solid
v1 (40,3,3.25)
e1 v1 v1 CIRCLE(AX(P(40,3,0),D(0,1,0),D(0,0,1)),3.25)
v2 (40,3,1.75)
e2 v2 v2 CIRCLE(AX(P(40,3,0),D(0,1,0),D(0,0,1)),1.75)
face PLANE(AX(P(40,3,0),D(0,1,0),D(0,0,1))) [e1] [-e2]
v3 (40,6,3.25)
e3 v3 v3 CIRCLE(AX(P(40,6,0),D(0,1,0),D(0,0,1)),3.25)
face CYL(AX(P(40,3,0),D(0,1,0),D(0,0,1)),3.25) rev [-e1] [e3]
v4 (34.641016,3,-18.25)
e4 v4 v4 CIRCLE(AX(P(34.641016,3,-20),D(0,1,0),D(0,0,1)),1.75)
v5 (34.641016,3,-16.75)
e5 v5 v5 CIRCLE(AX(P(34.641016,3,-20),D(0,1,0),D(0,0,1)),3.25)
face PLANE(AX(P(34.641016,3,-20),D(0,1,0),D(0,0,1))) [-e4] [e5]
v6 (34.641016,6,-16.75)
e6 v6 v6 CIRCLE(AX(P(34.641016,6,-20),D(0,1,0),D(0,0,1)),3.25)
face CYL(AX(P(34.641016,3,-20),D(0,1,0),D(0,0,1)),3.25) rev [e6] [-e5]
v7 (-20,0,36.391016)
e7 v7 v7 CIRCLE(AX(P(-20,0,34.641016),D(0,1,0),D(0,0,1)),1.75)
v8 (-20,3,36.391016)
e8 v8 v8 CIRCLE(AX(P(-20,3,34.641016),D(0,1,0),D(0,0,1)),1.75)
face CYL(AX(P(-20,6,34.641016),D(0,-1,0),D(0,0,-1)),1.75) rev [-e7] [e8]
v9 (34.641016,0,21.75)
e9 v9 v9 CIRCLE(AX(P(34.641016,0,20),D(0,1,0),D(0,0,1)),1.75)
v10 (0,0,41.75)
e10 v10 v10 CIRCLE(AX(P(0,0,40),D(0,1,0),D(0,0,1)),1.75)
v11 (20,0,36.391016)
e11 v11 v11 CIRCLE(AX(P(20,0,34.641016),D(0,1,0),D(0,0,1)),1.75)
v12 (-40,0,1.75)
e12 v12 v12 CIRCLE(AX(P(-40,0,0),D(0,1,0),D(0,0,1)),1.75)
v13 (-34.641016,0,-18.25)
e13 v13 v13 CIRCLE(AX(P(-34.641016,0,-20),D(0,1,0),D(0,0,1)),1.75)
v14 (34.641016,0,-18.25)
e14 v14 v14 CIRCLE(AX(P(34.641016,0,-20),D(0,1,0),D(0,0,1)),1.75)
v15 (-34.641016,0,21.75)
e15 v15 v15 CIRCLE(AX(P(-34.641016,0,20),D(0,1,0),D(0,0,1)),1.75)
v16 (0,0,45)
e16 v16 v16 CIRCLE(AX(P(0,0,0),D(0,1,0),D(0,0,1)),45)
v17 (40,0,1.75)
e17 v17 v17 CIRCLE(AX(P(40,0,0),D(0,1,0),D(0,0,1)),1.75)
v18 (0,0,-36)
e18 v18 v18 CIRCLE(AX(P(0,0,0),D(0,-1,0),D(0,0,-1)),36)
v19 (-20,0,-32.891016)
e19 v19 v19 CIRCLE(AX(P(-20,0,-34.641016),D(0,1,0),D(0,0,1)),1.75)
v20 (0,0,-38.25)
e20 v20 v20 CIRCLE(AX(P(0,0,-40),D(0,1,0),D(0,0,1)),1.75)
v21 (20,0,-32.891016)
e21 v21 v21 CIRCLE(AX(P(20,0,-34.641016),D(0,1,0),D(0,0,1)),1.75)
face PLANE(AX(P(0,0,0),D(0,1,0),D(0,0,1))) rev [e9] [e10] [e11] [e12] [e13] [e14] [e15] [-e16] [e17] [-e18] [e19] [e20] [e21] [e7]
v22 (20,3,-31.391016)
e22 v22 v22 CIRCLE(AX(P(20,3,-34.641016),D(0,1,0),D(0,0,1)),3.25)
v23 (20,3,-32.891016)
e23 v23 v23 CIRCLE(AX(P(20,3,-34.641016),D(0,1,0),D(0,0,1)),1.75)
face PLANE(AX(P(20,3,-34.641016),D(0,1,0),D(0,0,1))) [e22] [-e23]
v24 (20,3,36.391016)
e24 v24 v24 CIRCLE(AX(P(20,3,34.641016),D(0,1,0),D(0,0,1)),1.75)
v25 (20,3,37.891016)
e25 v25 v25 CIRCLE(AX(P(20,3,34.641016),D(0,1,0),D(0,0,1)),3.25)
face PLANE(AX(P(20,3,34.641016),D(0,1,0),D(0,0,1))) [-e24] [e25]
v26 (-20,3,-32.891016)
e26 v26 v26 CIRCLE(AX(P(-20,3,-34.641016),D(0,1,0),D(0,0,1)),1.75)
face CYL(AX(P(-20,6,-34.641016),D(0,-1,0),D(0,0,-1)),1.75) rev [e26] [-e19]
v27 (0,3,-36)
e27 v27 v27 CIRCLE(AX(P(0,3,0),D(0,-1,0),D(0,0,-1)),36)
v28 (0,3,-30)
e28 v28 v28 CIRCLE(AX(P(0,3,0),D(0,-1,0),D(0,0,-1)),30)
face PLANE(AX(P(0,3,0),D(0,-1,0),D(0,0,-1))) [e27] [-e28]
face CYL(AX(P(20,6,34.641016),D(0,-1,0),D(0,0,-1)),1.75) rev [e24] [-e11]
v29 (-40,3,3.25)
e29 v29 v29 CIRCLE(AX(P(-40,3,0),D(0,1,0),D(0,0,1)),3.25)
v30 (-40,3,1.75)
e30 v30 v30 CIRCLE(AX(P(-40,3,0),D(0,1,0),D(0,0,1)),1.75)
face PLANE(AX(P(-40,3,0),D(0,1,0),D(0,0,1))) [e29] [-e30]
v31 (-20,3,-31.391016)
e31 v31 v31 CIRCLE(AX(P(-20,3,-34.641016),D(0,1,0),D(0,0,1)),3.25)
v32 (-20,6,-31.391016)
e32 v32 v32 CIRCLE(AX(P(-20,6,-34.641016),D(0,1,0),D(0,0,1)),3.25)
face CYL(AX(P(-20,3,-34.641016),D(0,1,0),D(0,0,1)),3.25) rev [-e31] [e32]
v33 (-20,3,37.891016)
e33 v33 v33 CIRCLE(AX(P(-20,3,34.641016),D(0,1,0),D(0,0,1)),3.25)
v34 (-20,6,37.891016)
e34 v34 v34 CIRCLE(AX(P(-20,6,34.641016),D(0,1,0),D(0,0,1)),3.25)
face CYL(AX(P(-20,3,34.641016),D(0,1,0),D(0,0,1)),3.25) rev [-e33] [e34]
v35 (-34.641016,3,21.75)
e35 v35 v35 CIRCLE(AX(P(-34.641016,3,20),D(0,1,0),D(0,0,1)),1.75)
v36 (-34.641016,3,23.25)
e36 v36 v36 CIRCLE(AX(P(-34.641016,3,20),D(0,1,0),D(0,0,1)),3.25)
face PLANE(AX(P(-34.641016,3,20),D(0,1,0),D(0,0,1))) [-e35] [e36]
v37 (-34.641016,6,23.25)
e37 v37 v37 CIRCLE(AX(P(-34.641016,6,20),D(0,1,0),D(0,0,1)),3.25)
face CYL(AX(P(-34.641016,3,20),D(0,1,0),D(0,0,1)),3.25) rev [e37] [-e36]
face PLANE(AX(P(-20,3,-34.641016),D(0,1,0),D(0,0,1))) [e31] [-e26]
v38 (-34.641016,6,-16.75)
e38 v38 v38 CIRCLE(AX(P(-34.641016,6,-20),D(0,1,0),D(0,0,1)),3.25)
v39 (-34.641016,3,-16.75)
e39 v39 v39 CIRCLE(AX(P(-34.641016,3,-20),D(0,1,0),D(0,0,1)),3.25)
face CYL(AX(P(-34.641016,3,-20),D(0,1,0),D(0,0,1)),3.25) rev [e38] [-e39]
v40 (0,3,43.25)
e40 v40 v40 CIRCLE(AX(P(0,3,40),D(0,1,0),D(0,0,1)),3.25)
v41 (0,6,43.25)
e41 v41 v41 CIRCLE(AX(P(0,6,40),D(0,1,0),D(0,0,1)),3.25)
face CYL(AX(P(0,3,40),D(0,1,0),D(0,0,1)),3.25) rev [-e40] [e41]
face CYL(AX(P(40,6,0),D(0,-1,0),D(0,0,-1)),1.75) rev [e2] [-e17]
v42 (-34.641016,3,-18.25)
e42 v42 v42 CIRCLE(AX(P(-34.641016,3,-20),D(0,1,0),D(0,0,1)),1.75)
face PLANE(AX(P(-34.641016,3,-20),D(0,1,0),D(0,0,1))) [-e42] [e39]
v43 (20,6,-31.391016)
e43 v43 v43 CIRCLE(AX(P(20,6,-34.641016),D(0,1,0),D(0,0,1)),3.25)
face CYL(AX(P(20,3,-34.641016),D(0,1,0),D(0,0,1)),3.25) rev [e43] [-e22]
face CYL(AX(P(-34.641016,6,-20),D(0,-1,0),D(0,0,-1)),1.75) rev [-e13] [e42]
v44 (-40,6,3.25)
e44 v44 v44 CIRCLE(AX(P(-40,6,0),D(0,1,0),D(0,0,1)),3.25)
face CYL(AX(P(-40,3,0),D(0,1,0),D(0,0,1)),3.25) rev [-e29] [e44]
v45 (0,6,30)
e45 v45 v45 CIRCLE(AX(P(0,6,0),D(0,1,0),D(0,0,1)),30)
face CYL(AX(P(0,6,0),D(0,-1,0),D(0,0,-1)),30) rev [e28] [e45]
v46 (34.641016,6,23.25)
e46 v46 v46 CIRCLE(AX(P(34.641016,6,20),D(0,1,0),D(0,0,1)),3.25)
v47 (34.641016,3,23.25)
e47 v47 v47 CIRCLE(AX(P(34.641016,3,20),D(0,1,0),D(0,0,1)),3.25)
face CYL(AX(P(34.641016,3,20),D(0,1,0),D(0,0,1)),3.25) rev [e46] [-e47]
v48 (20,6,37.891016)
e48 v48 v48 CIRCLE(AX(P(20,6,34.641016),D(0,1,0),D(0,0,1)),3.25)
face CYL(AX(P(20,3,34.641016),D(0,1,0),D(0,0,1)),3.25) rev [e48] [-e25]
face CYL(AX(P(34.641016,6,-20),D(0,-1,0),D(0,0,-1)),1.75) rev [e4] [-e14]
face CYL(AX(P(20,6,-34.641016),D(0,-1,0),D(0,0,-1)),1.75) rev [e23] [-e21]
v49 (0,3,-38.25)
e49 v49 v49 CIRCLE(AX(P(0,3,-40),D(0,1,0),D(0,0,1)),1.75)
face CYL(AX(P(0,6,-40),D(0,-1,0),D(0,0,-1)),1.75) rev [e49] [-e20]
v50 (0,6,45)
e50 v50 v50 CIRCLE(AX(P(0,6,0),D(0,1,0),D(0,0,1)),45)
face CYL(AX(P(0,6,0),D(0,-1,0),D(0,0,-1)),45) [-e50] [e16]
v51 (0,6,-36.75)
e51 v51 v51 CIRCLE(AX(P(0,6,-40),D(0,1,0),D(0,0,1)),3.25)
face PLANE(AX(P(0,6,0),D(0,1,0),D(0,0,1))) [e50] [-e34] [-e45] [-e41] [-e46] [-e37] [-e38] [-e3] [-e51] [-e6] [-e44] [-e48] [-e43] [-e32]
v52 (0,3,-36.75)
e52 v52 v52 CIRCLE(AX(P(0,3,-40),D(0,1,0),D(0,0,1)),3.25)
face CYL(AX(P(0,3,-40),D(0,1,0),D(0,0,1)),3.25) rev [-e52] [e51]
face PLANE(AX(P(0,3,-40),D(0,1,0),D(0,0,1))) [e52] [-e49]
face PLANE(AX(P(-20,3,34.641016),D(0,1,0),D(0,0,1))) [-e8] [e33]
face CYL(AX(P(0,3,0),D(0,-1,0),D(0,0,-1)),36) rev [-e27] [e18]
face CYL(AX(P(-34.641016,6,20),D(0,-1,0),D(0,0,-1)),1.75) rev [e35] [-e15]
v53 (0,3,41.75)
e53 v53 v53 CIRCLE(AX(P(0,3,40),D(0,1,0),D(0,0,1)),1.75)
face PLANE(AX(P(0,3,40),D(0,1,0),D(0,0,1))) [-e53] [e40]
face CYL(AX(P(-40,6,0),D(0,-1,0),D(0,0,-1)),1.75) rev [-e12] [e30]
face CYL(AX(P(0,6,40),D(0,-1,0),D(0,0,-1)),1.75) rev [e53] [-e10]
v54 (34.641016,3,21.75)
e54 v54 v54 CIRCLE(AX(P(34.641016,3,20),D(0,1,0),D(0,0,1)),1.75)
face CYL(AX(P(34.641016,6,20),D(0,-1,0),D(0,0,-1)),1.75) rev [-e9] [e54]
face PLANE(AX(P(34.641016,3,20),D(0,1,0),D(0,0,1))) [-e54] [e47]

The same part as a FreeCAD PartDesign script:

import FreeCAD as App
import Part
import Sketcher
from FreeCAD import Vector
Q = App.Units.Quantity

doc = App.newDocument("Part")
body = doc.addObject("PartDesign::Body", "Body")

sketch1 = doc.addObject("Sketcher::SketchObject", "Sketch")
body.addObject(sketch1)
sketch1.AttachmentSupport = (doc.XZ_Plane, [""])
sketch1.MapMode = "FlatFace"
sketch1.addGeometry(Part.Circle(Vector(0, 0, 0), Vector(0, 0, 1), 45), False)
sketch1.addGeometry(Part.Circle(Vector(-34.6, -20, 0), Vector(0, 0, 1), 1.8), False)
sketch1.addGeometry(Part.Circle(Vector(-20, -34.6, 0), Vector(0, 0, 1), 1.8), False)
sketch1.addGeometry(Part.Circle(Vector(0, -40, 0), Vector(0, 0, 1), 1.8), False)
sketch1.addGeometry(Part.Circle(Vector(-40, 0, 0), Vector(0, 0, 1), 1.8), False)
sketch1.addGeometry(Part.Circle(Vector(-34.6, 20, 0), Vector(0, 0, 1), 1.8), False)
sketch1.addGeometry(Part.Circle(Vector(-20, 34.6, 0), Vector(0, 0, 1), 1.8), False)
sketch1.addGeometry(Part.Circle(Vector(20, -34.6, 0), Vector(0, 0, 1), 1.8), False)
sketch1.addGeometry(Part.Circle(Vector(34.6, -20, 0), Vector(0, 0, 1), 1.8), False)
sketch1.addGeometry(Part.Circle(Vector(40, 0, 0), Vector(0, 0, 1), 1.8), False)
sketch1.addGeometry(Part.Circle(Vector(0, 0, 0), Vector(0, 0, 1), 30), False)
sketch1.addGeometry(Part.Circle(Vector(0, 40, 0), Vector(0, 0, 1), 1.8), False)
sketch1.addGeometry(Part.Circle(Vector(20, 34.6, 0), Vector(0, 0, 1), 1.8), False)
sketch1.addGeometry(Part.Circle(Vector(34.6, 20, 0), Vector(0, 0, 1), 1.8), False)
sketch1.addConstraint(Sketcher.Constraint("Coincident", 0, 3, -1, 1))
sketch1.addConstraint(Sketcher.Constraint("Coincident", 10, 3, -1, 1))
sketch1.addConstraint(Sketcher.Constraint("Equal", 1, 2))
sketch1.addConstraint(Sketcher.Constraint("Equal", 2, 3))
sketch1.addConstraint(Sketcher.Constraint("Equal", 3, 4))
sketch1.addConstraint(Sketcher.Constraint("Equal", 4, 5))
sketch1.addConstraint(Sketcher.Constraint("Equal", 5, 6))
sketch1.addConstraint(Sketcher.Constraint("Equal", 6, 7))
sketch1.addConstraint(Sketcher.Constraint("Equal", 7, 8))
sketch1.addConstraint(Sketcher.Constraint("Equal", 8, 9))
sketch1.addConstraint(Sketcher.Constraint("Equal", 9, 11))
sketch1.addConstraint(Sketcher.Constraint("Equal", 11, 12))
sketch1.addConstraint(Sketcher.Constraint("Equal", 12, 13))
sketch1.addConstraint(Sketcher.Constraint("Symmetric", 6, 3, 7, 3, -1, 1))
sketch1.addConstraint(Sketcher.Constraint("Symmetric", 5, 3, 8, 3, -1, 1))
sketch1.addConstraint(Sketcher.Constraint("Symmetric", 4, 3, 9, 3, -1, 1))
sketch1.addConstraint(Sketcher.Constraint("Symmetric", 3, 3, 11, 3, -1, 1))
sketch1.addConstraint(Sketcher.Constraint("Symmetric", 2, 3, 12, 3, -1, 1))
sketch1.addConstraint(Sketcher.Constraint("Symmetric", 1, 3, 13, 3, -1, 1))
sketch1.addConstraint(Sketcher.Constraint("Symmetric", 2, 3, 7, 3, -2))
sketch1.addConstraint(Sketcher.Constraint("Symmetric", 1, 3, 8, 3, -2))
sketch1.addConstraint(Sketcher.Constraint("PointOnObject", 3, 3, -2))
sketch1.addConstraint(Sketcher.Constraint("PointOnObject", 4, 3, -1))
sketch1.addConstraint(Sketcher.Constraint("Diameter", 0, Q("90 mm")))
sketch1.addConstraint(Sketcher.Constraint("Diameter", 10, Q("60 mm")))
sketch1.addConstraint(Sketcher.Constraint("Diameter", 1, Q("3.5 mm")))
sketch1.addConstraint(Sketcher.Constraint("DistanceY", 1, 3, -1, 1, Q("20 mm")))
sketch1.addConstraint(Sketcher.Constraint("DistanceX", 2, 3, -1, 1, Q("20 mm")))
sketch1.addConstraint(Sketcher.Constraint("DistanceY", 3, 3, -1, 1, Q("40 mm")))
sketch1.addConstraint(Sketcher.Constraint("DistanceX", 4, 3, -1, 1, Q("40 mm")))
sketch1.addConstraint(Sketcher.Constraint("DistanceX", 1, 3, -1, 1, Q("34.641016 mm")))
sketch1.addConstraint(Sketcher.Constraint("DistanceY", 2, 3, -1, 1, Q("34.641016 mm")))
pad1 = doc.addObject("PartDesign::Pad", "Pad")
body.addObject(pad1)
pad1.Profile = sketch1
pad1.Length = 6
pad1.Reversed = True

sketch2 = doc.addObject("Sketcher::SketchObject", "Sketch001")
body.addObject(sketch2)
sketch2.AttachmentSupport = (doc.XZ_Plane, [""])
sketch2.MapMode = "FlatFace"
sketch2.addGeometry(Part.Circle(Vector(0, 0, 0), Vector(0, 0, 1), 36), False)
sketch2.addConstraint(Sketcher.Constraint("Coincident", 0, 3, -1, 1))
sketch2.addConstraint(Sketcher.Constraint("Diameter", 0, Q("72 mm")))
pocket1 = doc.addObject("PartDesign::Pocket", "Pocket")
body.addObject(pocket1)
pocket1.Profile = sketch2
pocket1.Length = 3

sketch3 = doc.addObject("Sketcher::SketchObject", "Sketch002")
body.addObject(sketch3)
sketch3.AttachmentSupport = (doc.XZ_Plane, [""])
sketch3.MapMode = "FlatFace"
sketch3.AttachmentOffset = App.Placement(Vector(0, 0, -6), App.Rotation())
sketch3.addGeometry(Part.Circle(Vector(40, 0, 0), Vector(0, 0, 1), 3.2), False)
sketch3.addGeometry(Part.Circle(Vector(34.6, 20, 0), Vector(0, 0, 1), 3.2), False)
sketch3.addGeometry(Part.Circle(Vector(20, 34.6, 0), Vector(0, 0, 1), 3.2), False)
sketch3.addGeometry(Part.Circle(Vector(0, 40, 0), Vector(0, 0, 1), 3.2), False)
sketch3.addGeometry(Part.Circle(Vector(-20, 34.6, 0), Vector(0, 0, 1), 3.2), False)
sketch3.addGeometry(Part.Circle(Vector(-34.6, 20, 0), Vector(0, 0, 1), 3.2), False)
sketch3.addGeometry(Part.Circle(Vector(-40, 0, 0), Vector(0, 0, 1), 3.2), False)
sketch3.addGeometry(Part.Circle(Vector(-34.6, -20, 0), Vector(0, 0, 1), 3.2), False)
sketch3.addGeometry(Part.Circle(Vector(-20, -34.6, 0), Vector(0, 0, 1), 3.2), False)
sketch3.addGeometry(Part.Circle(Vector(0, -40, 0), Vector(0, 0, 1), 3.2), False)
sketch3.addGeometry(Part.Circle(Vector(20, -34.6, 0), Vector(0, 0, 1), 3.2), False)
sketch3.addGeometry(Part.Circle(Vector(34.6, -20, 0), Vector(0, 0, 1), 3.2), False)
sketch3.addConstraint(Sketcher.Constraint("Equal", 0, 1))
sketch3.addConstraint(Sketcher.Constraint("Equal", 1, 2))
sketch3.addConstraint(Sketcher.Constraint("Equal", 2, 3))
sketch3.addConstraint(Sketcher.Constraint("Equal", 3, 4))
sketch3.addConstraint(Sketcher.Constraint("Equal", 4, 5))
sketch3.addConstraint(Sketcher.Constraint("Equal", 5, 6))
sketch3.addConstraint(Sketcher.Constraint("Equal", 6, 7))
sketch3.addConstraint(Sketcher.Constraint("Equal", 7, 8))
sketch3.addConstraint(Sketcher.Constraint("Equal", 8, 9))
sketch3.addConstraint(Sketcher.Constraint("Equal", 9, 10))
sketch3.addConstraint(Sketcher.Constraint("Equal", 10, 11))
sketch3.addConstraint(Sketcher.Constraint("Symmetric", 0, 3, 6, 3, -1, 1))
sketch3.addConstraint(Sketcher.Constraint("Symmetric", 1, 3, 7, 3, -1, 1))
sketch3.addConstraint(Sketcher.Constraint("Symmetric", 2, 3, 8, 3, -1, 1))
sketch3.addConstraint(Sketcher.Constraint("Symmetric", 3, 3, 9, 3, -1, 1))
sketch3.addConstraint(Sketcher.Constraint("Symmetric", 4, 3, 10, 3, -1, 1))
sketch3.addConstraint(Sketcher.Constraint("Symmetric", 5, 3, 11, 3, -1, 1))
sketch3.addConstraint(Sketcher.Constraint("Symmetric", 2, 3, 4, 3, -2))
sketch3.addConstraint(Sketcher.Constraint("Symmetric", 1, 3, 5, 3, -2))
sketch3.addConstraint(Sketcher.Constraint("PointOnObject", 0, 3, -1))
sketch3.addConstraint(Sketcher.Constraint("PointOnObject", 3, 3, -2))
sketch3.addConstraint(Sketcher.Constraint("Diameter", 0, Q("6.5 mm")))
sketch3.addConstraint(Sketcher.Constraint("DistanceX", -1, 1, 0, 3, Q("40 mm")))
sketch3.addConstraint(Sketcher.Constraint("DistanceY", -1, 1, 1, 3, Q("20 mm")))
sketch3.addConstraint(Sketcher.Constraint("DistanceX", -1, 1, 2, 3, Q("20 mm")))
sketch3.addConstraint(Sketcher.Constraint("DistanceY", -1, 1, 3, 3, Q("40 mm")))
sketch3.addConstraint(Sketcher.Constraint("DistanceX", -1, 1, 1, 3, Q("34.641016 mm")))
sketch3.addConstraint(Sketcher.Constraint("DistanceY", -1, 1, 2, 3, Q("34.641016 mm")))
pocket2 = doc.addObject("PartDesign::Pocket", "Pocket001")
body.addObject(pocket2)
pocket2.Profile = sketch3
pocket2.Length = 3
pocket2.Reversed = True

doc.recompute()
